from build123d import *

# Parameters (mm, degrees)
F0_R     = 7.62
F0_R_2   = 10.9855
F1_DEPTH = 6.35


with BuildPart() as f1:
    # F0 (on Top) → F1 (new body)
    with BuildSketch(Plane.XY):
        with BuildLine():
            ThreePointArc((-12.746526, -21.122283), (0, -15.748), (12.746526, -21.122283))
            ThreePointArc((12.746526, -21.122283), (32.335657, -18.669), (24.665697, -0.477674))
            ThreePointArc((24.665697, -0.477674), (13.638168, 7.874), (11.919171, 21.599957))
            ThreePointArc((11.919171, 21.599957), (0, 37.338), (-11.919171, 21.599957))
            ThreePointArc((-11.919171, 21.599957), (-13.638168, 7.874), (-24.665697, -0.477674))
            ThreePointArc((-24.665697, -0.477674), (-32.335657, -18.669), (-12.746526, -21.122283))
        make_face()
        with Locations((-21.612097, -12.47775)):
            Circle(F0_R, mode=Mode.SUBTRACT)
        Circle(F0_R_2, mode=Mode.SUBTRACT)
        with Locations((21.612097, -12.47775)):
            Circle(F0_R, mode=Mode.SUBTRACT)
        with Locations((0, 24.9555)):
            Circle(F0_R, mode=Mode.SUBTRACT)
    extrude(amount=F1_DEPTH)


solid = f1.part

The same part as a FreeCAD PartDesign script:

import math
import FreeCAD as App
import Part
import Sketcher
Q = App.Units.Quantity

doc = App.newDocument("Part")
params = doc.addObject("Spreadsheet::Sheet", "Params")
for row, (alias, value) in enumerate([
    ("sketch1_diameter", "0.6 in"),
    ("sketch1_diameter2", "0.865 in"),
    ("pad1_length", "0.25 in"),
], start=1):
    params.set(f"A{row}", alias)
    params.set(f"B{row}", "=" + value)
    params.setAlias(f"B{row}", alias)

body = doc.addObject("PartDesign::Body", "Body")

# Sketch on XY plane
sketch1 = body.newObject("Sketcher::SketchObject", "Sketch")
sketch1.AttachmentSupport = (doc.getObject("XY_Plane"), [""])
sketch1.MapMode = "FlatFace"
sketch1.addGeometry([
    Part.ArcOfCircle(Part.Circle(App.Vector(0, -33.551011, 0), App.Vector(0, 0, 1), 17.803011), math.radians(44.27677), math.radians(135.72323)),  # 0
    Part.ArcOfCircle(Part.Circle(App.Vector(21.612097, -12.47775, 0), App.Vector(0, 0, 1), 12.3825), math.radians(-135.723235), math.radians(75.723233)),  # 1
    Part.ArcOfCircle(Part.Circle(App.Vector(29.056028, 16.775505, 0), App.Vector(0, 0, 1), 17.803011), math.radians(164.276768), math.radians(255.723232)),  # 2
    Part.ArcOfCircle(Part.Circle(App.Vector(0, 24.9555, 0), App.Vector(0, 0, 1), 12.3825), math.radians(-15.723231), math.radians(195.723231)),  # 3
    Part.ArcOfCircle(Part.Circle(App.Vector(-29.056028, 16.775505, 0), App.Vector(0, 0, 1), 17.803011), math.radians(-75.723232), math.radians(15.723232)),  # 4
    Part.ArcOfCircle(Part.Circle(App.Vector(-21.612097, -12.47775, 0), App.Vector(0, 0, 1), 12.3825), math.radians(104.276767), math.radians(315.723235)),  # 5
    Part.Circle(App.Vector(-21.612097, -12.47775, 0), App.Vector(0, 0, 1), 7.62),  # 6
    Part.Circle(App.Vector(21.612097, -12.47775, 0), App.Vector(0, 0, 1), 7.62),  # 7
    Part.Circle(App.Vector(0, 0, 0), App.Vector(0, 0, 1), 10.9855),  # 8
    Part.Circle(App.Vector(0, 24.9555, 0), App.Vector(0, 0, 1), 7.62),  # 9
], False)
sketch1.addConstraint([
    Sketcher.Constraint("Tangent", 0, 1, 1, 1),
    Sketcher.Constraint("Tangent", 1, 2, 2, 2),
    Sketcher.Constraint("Tangent", 2, 1, 3, 1),
    Sketcher.Constraint("Tangent", 3, 2, 4, 2),
    Sketcher.Constraint("Tangent", 4, 1, 5, 1),
    Sketcher.Constraint("Tangent", 5, 2, 0, 2),
    Sketcher.Constraint("Coincident", 8, 3, -1, 1),
    Sketcher.Constraint("Coincident", 6, 3, 5, 3),
    Sketcher.Constraint("Coincident", 7, 3, 1, 3),
    Sketcher.Constraint("Coincident", 9, 3, 3, 3),
    Sketcher.Constraint("Equal", 0, 2),
    Sketcher.Constraint("Equal", 1, 3),
    Sketcher.Constraint("Equal", 2, 4),
    Sketcher.Constraint("Equal", 3, 5),
    Sketcher.Constraint("Equal", 6, 7),
    Sketcher.Constraint("Equal", 7, 9),
    Sketcher.Constraint("Symmetric", 2, 3, 4, 3, -2),
    Sketcher.Constraint("PointOnObject", 0, 3, -2),
    Sketcher.Constraint("Diameter", 6, Q("0.6 in")),
    Sketcher.Constraint("Diameter", 8, Q("0.865 in")),
    Sketcher.Constraint("Radius", 1, Q("0.4875 in")),
    Sketcher.Constraint("Radius", 0, Q("17.803011 mm")),
    Sketcher.Constraint("DistanceY", -1, 1, 3, 3, Q("0.9825 in")),
    Sketcher.Constraint("DistanceX", 7, 3, 1, 2, Q("3.0536 mm")),
    Sketcher.Constraint("DistanceY", 0, 3, -1, 1, Q("33.551011 mm")),
])
sketch1.setExpression("Constraints[18]", "Params.sketch1_diameter")
sketch1.setExpression("Constraints[19]", "Params.sketch1_diameter2")
pad1 = body.newObject("PartDesign::Pad", "Pad")
pad1.Profile = sketch1
pad1.setExpression("Length", "Params.pad1_length")

doc.recompute()
